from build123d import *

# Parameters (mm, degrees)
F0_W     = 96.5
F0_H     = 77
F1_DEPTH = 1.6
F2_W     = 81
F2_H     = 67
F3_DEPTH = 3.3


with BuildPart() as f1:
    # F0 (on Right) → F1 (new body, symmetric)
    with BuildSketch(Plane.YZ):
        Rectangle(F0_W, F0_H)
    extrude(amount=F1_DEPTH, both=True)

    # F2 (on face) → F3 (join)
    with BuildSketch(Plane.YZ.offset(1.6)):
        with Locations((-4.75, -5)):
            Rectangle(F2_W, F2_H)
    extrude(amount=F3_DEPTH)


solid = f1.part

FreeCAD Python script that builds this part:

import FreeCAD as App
import Part
import Sketcher

doc = App.newDocument("Part")
body = doc.addObject("PartDesign::Body", "Body")

# Sketch on YZ plane
sketch1 = doc.addObject("Sketcher::SketchObject", "Sketch")
body.addObject(sketch1)
sketch1.AttachmentSupport = (doc.YZ_Plane, [""])
sketch1.MapMode = "FlatFace"
sketch1.addGeometry(Part.LineSegment(App.Vector(-48.25, 38.5, 0), App.Vector(-48.25, -38.5, 0)), False)
sketch1.addGeometry(Part.LineSegment(App.Vector(-48.25, -38.5, 0), App.Vector(48.25, -38.5, 0)), False)
sketch1.addGeometry(Part.LineSegment(App.Vector(48.25, -38.5, 0), App.Vector(48.25, 38.5, 0)), False)
sketch1.addGeometry(Part.LineSegment(App.Vector(48.25, 38.5, 0), App.Vector(-48.25, 38.5, 0)), False)
sketch1.addConstraint(Sketcher.Constraint("Coincident", 0, 2, 1, 1))
sketch1.addConstraint(Sketcher.Constraint("Coincident", 1, 2, 2, 1))
sketch1.addConstraint(Sketcher.Constraint("Coincident", 2, 2, 3, 1))
sketch1.addConstraint(Sketcher.Constraint("Coincident", 3, 2, 0, 1))
sketch1.addConstraint(Sketcher.Constraint("Vertical", 0))
sketch1.addConstraint(Sketcher.Constraint("Horizontal", 1))
sketch1.addConstraint(Sketcher.Constraint("Vertical", 2))
sketch1.addConstraint(Sketcher.Constraint("Horizontal", 3))
sketch1.addConstraint(Sketcher.Constraint("Symmetric", 0, 2, 2, 2, -1, 1))
sketch1.addConstraint(Sketcher.Constraint("DistanceY", 0, 2, 0, 1, 77.0))
sketch1.addConstraint(Sketcher.Constraint("DistanceX", 1, 1, 1, 2, 96.5))
pad1 = doc.addObject("PartDesign::Pad", "Pad")
body.addObject(pad1)
pad1.Profile = sketch1
pad1.Length = 3.2
pad1.Midplane = True

# Sketch on YZ plane
sketch2 = doc.addObject("Sketcher::SketchObject", "Sketch001")
body.addObject(sketch2)
sketch2.AttachmentSupport = (doc.YZ_Plane, [""])
sketch2.MapMode = "FlatFace"
sketch2.AttachmentOffset = App.Placement(App.Vector(0, 0, 1.6), App.Rotation())
sketch2.addGeometry(Part.LineSegment(App.Vector(-45.25, 28.5, 0), App.Vector(-45.25, -38.5, 0)), False)
sketch2.addGeometry(Part.LineSegment(App.Vector(-45.25, -38.5, 0), App.Vector(35.75, -38.5, 0)), False)
sketch2.addGeometry(Part.LineSegment(App.Vector(35.75, -38.5, 0), App.Vector(35.75, 28.5, 0)), False)
sketch2.addGeometry(Part.LineSegment(App.Vector(35.75, 28.5, 0), App.Vector(-45.25, 28.5, 0)), False)
sketch2.addConstraint(Sketcher.Constraint("Coincident", 0, 2, 1, 1))
sketch2.addConstraint(Sketcher.Constraint("Coincident", 1, 2, 2, 1))
sketch2.addConstraint(Sketcher.Constraint("Coincident", 2, 2, 3, 1))
sketch2.addConstraint(Sketcher.Constraint("Coincident", 3, 2, 0, 1))
sketch2.addConstraint(Sketcher.Constraint("Vertical", 0))
sketch2.addConstraint(Sketcher.Constraint("Horizontal", 1))
sketch2.addConstraint(Sketcher.Constraint("Vertical", 2))
sketch2.addConstraint(Sketcher.Constraint("Horizontal", 3))
sketch2.addConstraint(Sketcher.Constraint("DistanceX", 1, 1, 1, 2, 81.0))
sketch2.addConstraint(Sketcher.Constraint("DistanceY", 0, 2, 0, 1, 67.0))
sketch2.addConstraint(Sketcher.Constraint("DistanceY", 0, 2, -1, 1, 38.5))
sketch2.addConstraint(Sketcher.Constraint("DistanceX", 0, 2, -1, 1, 45.25))
pad2 = doc.addObject("PartDesign::Pad", "Pad001")
body.addObject(pad2)
pad2.Profile = sketch2
pad2.Length = 3.3

doc.recompute()
